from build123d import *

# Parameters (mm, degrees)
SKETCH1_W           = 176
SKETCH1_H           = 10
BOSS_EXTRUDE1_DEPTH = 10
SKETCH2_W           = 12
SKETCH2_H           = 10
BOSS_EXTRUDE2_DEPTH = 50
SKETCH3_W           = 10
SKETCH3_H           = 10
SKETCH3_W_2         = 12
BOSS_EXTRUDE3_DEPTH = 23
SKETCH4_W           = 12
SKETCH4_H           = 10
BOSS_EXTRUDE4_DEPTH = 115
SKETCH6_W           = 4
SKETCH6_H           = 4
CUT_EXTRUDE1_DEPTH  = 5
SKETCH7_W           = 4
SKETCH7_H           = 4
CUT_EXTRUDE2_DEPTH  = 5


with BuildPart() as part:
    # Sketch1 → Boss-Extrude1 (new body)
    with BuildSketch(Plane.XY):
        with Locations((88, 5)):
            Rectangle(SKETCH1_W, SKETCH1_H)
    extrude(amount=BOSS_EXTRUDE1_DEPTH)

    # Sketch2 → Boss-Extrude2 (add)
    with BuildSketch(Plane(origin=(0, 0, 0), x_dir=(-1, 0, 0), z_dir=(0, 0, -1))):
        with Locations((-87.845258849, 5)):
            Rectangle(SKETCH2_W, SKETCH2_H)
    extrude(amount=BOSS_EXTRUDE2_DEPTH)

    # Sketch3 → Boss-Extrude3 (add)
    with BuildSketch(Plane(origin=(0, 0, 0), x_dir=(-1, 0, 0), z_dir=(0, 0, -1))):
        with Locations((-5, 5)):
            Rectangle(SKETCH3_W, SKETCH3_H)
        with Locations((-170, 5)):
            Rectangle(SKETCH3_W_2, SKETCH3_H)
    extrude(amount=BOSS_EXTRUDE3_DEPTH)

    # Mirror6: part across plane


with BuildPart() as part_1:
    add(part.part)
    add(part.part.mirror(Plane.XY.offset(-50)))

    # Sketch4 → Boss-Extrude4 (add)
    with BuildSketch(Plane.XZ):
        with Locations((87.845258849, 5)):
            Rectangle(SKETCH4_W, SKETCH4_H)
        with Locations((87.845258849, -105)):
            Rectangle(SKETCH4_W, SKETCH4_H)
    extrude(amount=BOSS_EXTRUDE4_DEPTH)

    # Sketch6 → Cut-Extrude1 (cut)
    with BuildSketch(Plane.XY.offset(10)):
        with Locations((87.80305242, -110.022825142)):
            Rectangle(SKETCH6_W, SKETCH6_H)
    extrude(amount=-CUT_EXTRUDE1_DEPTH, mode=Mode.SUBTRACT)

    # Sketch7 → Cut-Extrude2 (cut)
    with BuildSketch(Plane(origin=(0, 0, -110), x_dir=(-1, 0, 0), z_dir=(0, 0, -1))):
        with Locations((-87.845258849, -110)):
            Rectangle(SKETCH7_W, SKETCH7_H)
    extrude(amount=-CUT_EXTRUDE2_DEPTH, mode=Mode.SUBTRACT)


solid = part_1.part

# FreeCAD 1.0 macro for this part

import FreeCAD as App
import Part
import Sketcher
from FreeCAD import Vector
Q = App.Units.Quantity


def add_polygon(sketch, points):
    """Adds a closed chain of lines whose ends are joined by coincident constraints."""
    first, n = sketch.GeometryCount, len(points)
    for a, b in zip(points, points[1:] + points[:1]):
        sketch.addGeometry(Part.LineSegment(App.Vector(*a, 0), App.Vector(*b, 0)), False)
    for i in range(n):
        sketch.addConstraint(Sketcher.Constraint("Coincident", first + i, 2, first + (i + 1) % n, 1))

doc = App.newDocument("Part")
body = doc.addObject("PartDesign::Body", "Body")

# Sketch on XY plane
sketch1 = body.newObject("Sketcher::SketchObject", "Sketch")
sketch1.AttachmentSupport = (doc.getObject("XY_Plane"), [""])
sketch1.MapMode = "FlatFace"
add_polygon(sketch1, [(0, 10), (0, 0), (176, 0), (176, 10)])  # lines 0-3
sketch1.addConstraint([
    Sketcher.Constraint("Vertical", 0),
    Sketcher.Constraint("Horizontal", 1),
    Sketcher.Constraint("Vertical", 2),
    Sketcher.Constraint("Horizontal", 3),
    Sketcher.Constraint("Coincident", 0, 2, -1, 1),
    Sketcher.Constraint("DistanceX", 1, 1, 1, 2, Q("176 mm")),
    Sketcher.Constraint("DistanceY", 0, 2, 0, 1, Q("10 mm")),
])
pad1 = body.newObject("PartDesign::Pad", "Pad")
pad1.Profile = sketch1
pad1.Length = 10

# Sketch on XY plane
sketch2 = body.newObject("Sketcher::SketchObject", "Sketch001")
sketch2.AttachmentSupport = (doc.getObject("XY_Plane"), [""])
sketch2.MapMode = "FlatFace"
add_polygon(sketch2, [(94, 10), (94, 0), (82, 0), (82, 10)])  # lines 0-3
sketch2.addConstraint([
    Sketcher.Constraint("Vertical", 0),
    Sketcher.Constraint("Horizontal", 1),
    Sketcher.Constraint("Vertical", 2),
    Sketcher.Constraint("Horizontal", 3),
    Sketcher.Constraint("PointOnObject", 0, 2, -1),
    Sketcher.Constraint("DistanceX", 1, 2, 1, 1, Q("12 mm")),
    Sketcher.Constraint("DistanceY", 0, 2, 0, 1, Q("10 mm")),
    Sketcher.Constraint("DistanceX", -1, 1, 0, 2, Q("93.845259 mm")),
])
pad2 = body.newObject("PartDesign::Pad", "Pad001")
pad2.Profile = sketch2
pad2.Length = 50
pad2.Reversed = True

# Sketch on XY plane
sketch3 = body.newObject("Sketcher::SketchObject", "Sketch002")
sketch3.AttachmentSupport = (doc.getObject("XY_Plane"), [""])
sketch3.MapMode = "FlatFace"
add_polygon(sketch3, [(10, 10), (10, 0), (0, 0), (0, 10)])  # lines 0-3
add_polygon(sketch3, [(176, 10), (176, 0), (164, 0), (164, 10)])  # lines 4-7
sketch3.addConstraint([
    Sketcher.Constraint("Vertical", 0),
    Sketcher.Constraint("Horizontal", 1),
    Sketcher.Constraint("Vertical", 2),
    Sketcher.Constraint("Horizontal", 3),
    Sketcher.Constraint("Vertical", 4),
    Sketcher.Constraint("Horizontal", 5),
    Sketcher.Constraint("Vertical", 6),
    Sketcher.Constraint("Horizontal", 7),
    Sketcher.Constraint("Coincident", 1, 2, -1, 1),
    Sketcher.Constraint("PointOnObject", 4, 2, -1),
    Sketcher.Constraint("Horizontal", 3, 2, 6, 2),
    Sketcher.Constraint("Equal", 3, 0),
    Sketcher.Constraint("DistanceX", 1, 2, 1, 1, Q("10 mm")),
    Sketcher.Constraint("DistanceX", 5, 2, 5, 1, Q("12 mm")),
    Sketcher.Constraint("DistanceX", -1, 1, 4, 2, Q("176 mm")),
])
pad3 = body.newObject("PartDesign::Pad", "Pad002")
pad3.Profile = sketch3
pad3.Length = 23
pad3.Reversed = True
body2 = doc.addObject("PartDesign::Body", "Body001")
doc.recompute()

body2.BaseFeature = body
doc.recompute()

mirroring = doc.addObject("Part::Mirroring", "Mirroring")
mirroring.Source = body
mirroring.Base = Vector(0, 0, -50)
mirroring.Normal = Vector(0, 0, 1)
body3 = doc.addObject("PartDesign::Body", "Body002")
body3.BaseFeature = mirroring
boolean = body2.newObject("PartDesign::Boolean", "Boolean")
boolean.Type = "Fuse"
boolean.addObjects([body3])
doc.recompute()

# Sketch on XZ plane
sketch4 = body2.newObject("Sketcher::SketchObject", "Sketch003")
sketch4.AttachmentSupport = (doc.getObject("XZ_Plane001"), [""])
sketch4.MapMode = "FlatFace"
add_polygon(sketch4, [(82, 10), (82, 0), (94, 0), (94, 10)])  # lines 0-3
add_polygon(sketch4, [(82, -100), (82, -110), (94, -110), (94, -100)])  # lines 4-7
sketch4.addConstraint([
    Sketcher.Constraint("Vertical", 0),
    Sketcher.Constraint("Horizontal", 1),
    Sketcher.Constraint("Vertical", 2),
    Sketcher.Constraint("Horizontal", 3),
    Sketcher.Constraint("Vertical", 4),
    Sketcher.Constraint("Horizontal", 5),
    Sketcher.Constraint("Vertical", 6),
    Sketcher.Constraint("Horizontal", 7),
    Sketcher.Constraint("PointOnObject", 0, 2, -1),
    Sketcher.Constraint("Vertical", 3, 2, 4, 2),
    Sketcher.Constraint("Vertical", 2, 2, 5, 2),
    Sketcher.Constraint("Equal", 2, 4),
    Sketcher.Constraint("DistanceX", 1, 1, 1, 2, Q("12 mm")),
    Sketcher.Constraint("DistanceY", 0, 2, 0, 1, Q("10 mm")),
    Sketcher.Constraint("DistanceY", 4, 2, -1, 1, Q("110 mm")),
    Sketcher.Constraint("DistanceX", -1, 1, 0, 2, Q("81.845259 mm")),
])
pad4 = body2.newObject("PartDesign::Pad", "Pad003")
pad4.Profile = sketch4
pad4.Length = 115

# Sketch on XY plane
sketch5 = body2.newObject("Sketcher::SketchObject", "Sketch004")
sketch5.AttachmentSupport = (doc.getObject("XY_Plane001"), [""])
sketch5.MapMode = "FlatFace"
sketch5.AttachmentOffset = App.Placement(Vector(0, 0, 10), App.Rotation())
add_polygon(sketch5, [(85.8, -108), (85.8, -112), (89.8, -112), (89.8, -108)])  # lines 0-3
sketch5.addConstraint([
    Sketcher.Constraint("Vertical", 0),
    Sketcher.Constraint("Horizontal", 1),
    Sketcher.Constraint("Vertical", 2),
    Sketcher.Constraint("Horizontal", 3),
    Sketcher.Constraint("Equal", 3, 0),
    Sketcher.Constraint("DistanceX", 1, 1, 1, 2, Q("4 mm")),
    Sketcher.Constraint("DistanceX", -1, 1, 0, 2, Q("85.803052 mm")),
    Sketcher.Constraint("DistanceY", 0, 2, -1, 1, Q("112.022825 mm")),
])
pocket1 = body2.newObject("PartDesign::Pocket", "Pocket")
pocket1.Profile = sketch5
pocket1.Length = 5

# Sketch on XY plane
sketch6 = body2.newObject("Sketcher::SketchObject", "Sketch005")
sketch6.AttachmentSupport = (doc.getObject("XY_Plane001"), [""])
sketch6.MapMode = "FlatFace"
sketch6.AttachmentOffset = App.Placement(Vector(0, 0, -110), App.Rotation())
add_polygon(sketch6, [(89.8, -108), (89.8, -112), (85.8, -112), (85.8, -108)])  # lines 0-3
sketch6.addConstraint([
    Sketcher.Constraint("Vertical", 0),
    Sketcher.Constraint("Horizontal", 1),
    Sketcher.Constraint("Vertical", 2),
    Sketcher.Constraint("Horizontal", 3),
    Sketcher.Constraint("Equal", 3, 0),
    Sketcher.Constraint("DistanceX", 1, 2, 1, 1, Q("4 mm")),
    Sketcher.Constraint("DistanceY", 0, 2, -1, 1, Q("112 mm")),
    Sketcher.Constraint("DistanceX", -1, 1, 0, 2, Q("89.845259 mm")),
])
pocket2 = body2.newObject("PartDesign::Pocket", "Pocket001")
pocket2.Profile = sketch6
pocket2.Length = 5
pocket2.Reversed = True
mirroring.Visibility = False

doc.recompute()
